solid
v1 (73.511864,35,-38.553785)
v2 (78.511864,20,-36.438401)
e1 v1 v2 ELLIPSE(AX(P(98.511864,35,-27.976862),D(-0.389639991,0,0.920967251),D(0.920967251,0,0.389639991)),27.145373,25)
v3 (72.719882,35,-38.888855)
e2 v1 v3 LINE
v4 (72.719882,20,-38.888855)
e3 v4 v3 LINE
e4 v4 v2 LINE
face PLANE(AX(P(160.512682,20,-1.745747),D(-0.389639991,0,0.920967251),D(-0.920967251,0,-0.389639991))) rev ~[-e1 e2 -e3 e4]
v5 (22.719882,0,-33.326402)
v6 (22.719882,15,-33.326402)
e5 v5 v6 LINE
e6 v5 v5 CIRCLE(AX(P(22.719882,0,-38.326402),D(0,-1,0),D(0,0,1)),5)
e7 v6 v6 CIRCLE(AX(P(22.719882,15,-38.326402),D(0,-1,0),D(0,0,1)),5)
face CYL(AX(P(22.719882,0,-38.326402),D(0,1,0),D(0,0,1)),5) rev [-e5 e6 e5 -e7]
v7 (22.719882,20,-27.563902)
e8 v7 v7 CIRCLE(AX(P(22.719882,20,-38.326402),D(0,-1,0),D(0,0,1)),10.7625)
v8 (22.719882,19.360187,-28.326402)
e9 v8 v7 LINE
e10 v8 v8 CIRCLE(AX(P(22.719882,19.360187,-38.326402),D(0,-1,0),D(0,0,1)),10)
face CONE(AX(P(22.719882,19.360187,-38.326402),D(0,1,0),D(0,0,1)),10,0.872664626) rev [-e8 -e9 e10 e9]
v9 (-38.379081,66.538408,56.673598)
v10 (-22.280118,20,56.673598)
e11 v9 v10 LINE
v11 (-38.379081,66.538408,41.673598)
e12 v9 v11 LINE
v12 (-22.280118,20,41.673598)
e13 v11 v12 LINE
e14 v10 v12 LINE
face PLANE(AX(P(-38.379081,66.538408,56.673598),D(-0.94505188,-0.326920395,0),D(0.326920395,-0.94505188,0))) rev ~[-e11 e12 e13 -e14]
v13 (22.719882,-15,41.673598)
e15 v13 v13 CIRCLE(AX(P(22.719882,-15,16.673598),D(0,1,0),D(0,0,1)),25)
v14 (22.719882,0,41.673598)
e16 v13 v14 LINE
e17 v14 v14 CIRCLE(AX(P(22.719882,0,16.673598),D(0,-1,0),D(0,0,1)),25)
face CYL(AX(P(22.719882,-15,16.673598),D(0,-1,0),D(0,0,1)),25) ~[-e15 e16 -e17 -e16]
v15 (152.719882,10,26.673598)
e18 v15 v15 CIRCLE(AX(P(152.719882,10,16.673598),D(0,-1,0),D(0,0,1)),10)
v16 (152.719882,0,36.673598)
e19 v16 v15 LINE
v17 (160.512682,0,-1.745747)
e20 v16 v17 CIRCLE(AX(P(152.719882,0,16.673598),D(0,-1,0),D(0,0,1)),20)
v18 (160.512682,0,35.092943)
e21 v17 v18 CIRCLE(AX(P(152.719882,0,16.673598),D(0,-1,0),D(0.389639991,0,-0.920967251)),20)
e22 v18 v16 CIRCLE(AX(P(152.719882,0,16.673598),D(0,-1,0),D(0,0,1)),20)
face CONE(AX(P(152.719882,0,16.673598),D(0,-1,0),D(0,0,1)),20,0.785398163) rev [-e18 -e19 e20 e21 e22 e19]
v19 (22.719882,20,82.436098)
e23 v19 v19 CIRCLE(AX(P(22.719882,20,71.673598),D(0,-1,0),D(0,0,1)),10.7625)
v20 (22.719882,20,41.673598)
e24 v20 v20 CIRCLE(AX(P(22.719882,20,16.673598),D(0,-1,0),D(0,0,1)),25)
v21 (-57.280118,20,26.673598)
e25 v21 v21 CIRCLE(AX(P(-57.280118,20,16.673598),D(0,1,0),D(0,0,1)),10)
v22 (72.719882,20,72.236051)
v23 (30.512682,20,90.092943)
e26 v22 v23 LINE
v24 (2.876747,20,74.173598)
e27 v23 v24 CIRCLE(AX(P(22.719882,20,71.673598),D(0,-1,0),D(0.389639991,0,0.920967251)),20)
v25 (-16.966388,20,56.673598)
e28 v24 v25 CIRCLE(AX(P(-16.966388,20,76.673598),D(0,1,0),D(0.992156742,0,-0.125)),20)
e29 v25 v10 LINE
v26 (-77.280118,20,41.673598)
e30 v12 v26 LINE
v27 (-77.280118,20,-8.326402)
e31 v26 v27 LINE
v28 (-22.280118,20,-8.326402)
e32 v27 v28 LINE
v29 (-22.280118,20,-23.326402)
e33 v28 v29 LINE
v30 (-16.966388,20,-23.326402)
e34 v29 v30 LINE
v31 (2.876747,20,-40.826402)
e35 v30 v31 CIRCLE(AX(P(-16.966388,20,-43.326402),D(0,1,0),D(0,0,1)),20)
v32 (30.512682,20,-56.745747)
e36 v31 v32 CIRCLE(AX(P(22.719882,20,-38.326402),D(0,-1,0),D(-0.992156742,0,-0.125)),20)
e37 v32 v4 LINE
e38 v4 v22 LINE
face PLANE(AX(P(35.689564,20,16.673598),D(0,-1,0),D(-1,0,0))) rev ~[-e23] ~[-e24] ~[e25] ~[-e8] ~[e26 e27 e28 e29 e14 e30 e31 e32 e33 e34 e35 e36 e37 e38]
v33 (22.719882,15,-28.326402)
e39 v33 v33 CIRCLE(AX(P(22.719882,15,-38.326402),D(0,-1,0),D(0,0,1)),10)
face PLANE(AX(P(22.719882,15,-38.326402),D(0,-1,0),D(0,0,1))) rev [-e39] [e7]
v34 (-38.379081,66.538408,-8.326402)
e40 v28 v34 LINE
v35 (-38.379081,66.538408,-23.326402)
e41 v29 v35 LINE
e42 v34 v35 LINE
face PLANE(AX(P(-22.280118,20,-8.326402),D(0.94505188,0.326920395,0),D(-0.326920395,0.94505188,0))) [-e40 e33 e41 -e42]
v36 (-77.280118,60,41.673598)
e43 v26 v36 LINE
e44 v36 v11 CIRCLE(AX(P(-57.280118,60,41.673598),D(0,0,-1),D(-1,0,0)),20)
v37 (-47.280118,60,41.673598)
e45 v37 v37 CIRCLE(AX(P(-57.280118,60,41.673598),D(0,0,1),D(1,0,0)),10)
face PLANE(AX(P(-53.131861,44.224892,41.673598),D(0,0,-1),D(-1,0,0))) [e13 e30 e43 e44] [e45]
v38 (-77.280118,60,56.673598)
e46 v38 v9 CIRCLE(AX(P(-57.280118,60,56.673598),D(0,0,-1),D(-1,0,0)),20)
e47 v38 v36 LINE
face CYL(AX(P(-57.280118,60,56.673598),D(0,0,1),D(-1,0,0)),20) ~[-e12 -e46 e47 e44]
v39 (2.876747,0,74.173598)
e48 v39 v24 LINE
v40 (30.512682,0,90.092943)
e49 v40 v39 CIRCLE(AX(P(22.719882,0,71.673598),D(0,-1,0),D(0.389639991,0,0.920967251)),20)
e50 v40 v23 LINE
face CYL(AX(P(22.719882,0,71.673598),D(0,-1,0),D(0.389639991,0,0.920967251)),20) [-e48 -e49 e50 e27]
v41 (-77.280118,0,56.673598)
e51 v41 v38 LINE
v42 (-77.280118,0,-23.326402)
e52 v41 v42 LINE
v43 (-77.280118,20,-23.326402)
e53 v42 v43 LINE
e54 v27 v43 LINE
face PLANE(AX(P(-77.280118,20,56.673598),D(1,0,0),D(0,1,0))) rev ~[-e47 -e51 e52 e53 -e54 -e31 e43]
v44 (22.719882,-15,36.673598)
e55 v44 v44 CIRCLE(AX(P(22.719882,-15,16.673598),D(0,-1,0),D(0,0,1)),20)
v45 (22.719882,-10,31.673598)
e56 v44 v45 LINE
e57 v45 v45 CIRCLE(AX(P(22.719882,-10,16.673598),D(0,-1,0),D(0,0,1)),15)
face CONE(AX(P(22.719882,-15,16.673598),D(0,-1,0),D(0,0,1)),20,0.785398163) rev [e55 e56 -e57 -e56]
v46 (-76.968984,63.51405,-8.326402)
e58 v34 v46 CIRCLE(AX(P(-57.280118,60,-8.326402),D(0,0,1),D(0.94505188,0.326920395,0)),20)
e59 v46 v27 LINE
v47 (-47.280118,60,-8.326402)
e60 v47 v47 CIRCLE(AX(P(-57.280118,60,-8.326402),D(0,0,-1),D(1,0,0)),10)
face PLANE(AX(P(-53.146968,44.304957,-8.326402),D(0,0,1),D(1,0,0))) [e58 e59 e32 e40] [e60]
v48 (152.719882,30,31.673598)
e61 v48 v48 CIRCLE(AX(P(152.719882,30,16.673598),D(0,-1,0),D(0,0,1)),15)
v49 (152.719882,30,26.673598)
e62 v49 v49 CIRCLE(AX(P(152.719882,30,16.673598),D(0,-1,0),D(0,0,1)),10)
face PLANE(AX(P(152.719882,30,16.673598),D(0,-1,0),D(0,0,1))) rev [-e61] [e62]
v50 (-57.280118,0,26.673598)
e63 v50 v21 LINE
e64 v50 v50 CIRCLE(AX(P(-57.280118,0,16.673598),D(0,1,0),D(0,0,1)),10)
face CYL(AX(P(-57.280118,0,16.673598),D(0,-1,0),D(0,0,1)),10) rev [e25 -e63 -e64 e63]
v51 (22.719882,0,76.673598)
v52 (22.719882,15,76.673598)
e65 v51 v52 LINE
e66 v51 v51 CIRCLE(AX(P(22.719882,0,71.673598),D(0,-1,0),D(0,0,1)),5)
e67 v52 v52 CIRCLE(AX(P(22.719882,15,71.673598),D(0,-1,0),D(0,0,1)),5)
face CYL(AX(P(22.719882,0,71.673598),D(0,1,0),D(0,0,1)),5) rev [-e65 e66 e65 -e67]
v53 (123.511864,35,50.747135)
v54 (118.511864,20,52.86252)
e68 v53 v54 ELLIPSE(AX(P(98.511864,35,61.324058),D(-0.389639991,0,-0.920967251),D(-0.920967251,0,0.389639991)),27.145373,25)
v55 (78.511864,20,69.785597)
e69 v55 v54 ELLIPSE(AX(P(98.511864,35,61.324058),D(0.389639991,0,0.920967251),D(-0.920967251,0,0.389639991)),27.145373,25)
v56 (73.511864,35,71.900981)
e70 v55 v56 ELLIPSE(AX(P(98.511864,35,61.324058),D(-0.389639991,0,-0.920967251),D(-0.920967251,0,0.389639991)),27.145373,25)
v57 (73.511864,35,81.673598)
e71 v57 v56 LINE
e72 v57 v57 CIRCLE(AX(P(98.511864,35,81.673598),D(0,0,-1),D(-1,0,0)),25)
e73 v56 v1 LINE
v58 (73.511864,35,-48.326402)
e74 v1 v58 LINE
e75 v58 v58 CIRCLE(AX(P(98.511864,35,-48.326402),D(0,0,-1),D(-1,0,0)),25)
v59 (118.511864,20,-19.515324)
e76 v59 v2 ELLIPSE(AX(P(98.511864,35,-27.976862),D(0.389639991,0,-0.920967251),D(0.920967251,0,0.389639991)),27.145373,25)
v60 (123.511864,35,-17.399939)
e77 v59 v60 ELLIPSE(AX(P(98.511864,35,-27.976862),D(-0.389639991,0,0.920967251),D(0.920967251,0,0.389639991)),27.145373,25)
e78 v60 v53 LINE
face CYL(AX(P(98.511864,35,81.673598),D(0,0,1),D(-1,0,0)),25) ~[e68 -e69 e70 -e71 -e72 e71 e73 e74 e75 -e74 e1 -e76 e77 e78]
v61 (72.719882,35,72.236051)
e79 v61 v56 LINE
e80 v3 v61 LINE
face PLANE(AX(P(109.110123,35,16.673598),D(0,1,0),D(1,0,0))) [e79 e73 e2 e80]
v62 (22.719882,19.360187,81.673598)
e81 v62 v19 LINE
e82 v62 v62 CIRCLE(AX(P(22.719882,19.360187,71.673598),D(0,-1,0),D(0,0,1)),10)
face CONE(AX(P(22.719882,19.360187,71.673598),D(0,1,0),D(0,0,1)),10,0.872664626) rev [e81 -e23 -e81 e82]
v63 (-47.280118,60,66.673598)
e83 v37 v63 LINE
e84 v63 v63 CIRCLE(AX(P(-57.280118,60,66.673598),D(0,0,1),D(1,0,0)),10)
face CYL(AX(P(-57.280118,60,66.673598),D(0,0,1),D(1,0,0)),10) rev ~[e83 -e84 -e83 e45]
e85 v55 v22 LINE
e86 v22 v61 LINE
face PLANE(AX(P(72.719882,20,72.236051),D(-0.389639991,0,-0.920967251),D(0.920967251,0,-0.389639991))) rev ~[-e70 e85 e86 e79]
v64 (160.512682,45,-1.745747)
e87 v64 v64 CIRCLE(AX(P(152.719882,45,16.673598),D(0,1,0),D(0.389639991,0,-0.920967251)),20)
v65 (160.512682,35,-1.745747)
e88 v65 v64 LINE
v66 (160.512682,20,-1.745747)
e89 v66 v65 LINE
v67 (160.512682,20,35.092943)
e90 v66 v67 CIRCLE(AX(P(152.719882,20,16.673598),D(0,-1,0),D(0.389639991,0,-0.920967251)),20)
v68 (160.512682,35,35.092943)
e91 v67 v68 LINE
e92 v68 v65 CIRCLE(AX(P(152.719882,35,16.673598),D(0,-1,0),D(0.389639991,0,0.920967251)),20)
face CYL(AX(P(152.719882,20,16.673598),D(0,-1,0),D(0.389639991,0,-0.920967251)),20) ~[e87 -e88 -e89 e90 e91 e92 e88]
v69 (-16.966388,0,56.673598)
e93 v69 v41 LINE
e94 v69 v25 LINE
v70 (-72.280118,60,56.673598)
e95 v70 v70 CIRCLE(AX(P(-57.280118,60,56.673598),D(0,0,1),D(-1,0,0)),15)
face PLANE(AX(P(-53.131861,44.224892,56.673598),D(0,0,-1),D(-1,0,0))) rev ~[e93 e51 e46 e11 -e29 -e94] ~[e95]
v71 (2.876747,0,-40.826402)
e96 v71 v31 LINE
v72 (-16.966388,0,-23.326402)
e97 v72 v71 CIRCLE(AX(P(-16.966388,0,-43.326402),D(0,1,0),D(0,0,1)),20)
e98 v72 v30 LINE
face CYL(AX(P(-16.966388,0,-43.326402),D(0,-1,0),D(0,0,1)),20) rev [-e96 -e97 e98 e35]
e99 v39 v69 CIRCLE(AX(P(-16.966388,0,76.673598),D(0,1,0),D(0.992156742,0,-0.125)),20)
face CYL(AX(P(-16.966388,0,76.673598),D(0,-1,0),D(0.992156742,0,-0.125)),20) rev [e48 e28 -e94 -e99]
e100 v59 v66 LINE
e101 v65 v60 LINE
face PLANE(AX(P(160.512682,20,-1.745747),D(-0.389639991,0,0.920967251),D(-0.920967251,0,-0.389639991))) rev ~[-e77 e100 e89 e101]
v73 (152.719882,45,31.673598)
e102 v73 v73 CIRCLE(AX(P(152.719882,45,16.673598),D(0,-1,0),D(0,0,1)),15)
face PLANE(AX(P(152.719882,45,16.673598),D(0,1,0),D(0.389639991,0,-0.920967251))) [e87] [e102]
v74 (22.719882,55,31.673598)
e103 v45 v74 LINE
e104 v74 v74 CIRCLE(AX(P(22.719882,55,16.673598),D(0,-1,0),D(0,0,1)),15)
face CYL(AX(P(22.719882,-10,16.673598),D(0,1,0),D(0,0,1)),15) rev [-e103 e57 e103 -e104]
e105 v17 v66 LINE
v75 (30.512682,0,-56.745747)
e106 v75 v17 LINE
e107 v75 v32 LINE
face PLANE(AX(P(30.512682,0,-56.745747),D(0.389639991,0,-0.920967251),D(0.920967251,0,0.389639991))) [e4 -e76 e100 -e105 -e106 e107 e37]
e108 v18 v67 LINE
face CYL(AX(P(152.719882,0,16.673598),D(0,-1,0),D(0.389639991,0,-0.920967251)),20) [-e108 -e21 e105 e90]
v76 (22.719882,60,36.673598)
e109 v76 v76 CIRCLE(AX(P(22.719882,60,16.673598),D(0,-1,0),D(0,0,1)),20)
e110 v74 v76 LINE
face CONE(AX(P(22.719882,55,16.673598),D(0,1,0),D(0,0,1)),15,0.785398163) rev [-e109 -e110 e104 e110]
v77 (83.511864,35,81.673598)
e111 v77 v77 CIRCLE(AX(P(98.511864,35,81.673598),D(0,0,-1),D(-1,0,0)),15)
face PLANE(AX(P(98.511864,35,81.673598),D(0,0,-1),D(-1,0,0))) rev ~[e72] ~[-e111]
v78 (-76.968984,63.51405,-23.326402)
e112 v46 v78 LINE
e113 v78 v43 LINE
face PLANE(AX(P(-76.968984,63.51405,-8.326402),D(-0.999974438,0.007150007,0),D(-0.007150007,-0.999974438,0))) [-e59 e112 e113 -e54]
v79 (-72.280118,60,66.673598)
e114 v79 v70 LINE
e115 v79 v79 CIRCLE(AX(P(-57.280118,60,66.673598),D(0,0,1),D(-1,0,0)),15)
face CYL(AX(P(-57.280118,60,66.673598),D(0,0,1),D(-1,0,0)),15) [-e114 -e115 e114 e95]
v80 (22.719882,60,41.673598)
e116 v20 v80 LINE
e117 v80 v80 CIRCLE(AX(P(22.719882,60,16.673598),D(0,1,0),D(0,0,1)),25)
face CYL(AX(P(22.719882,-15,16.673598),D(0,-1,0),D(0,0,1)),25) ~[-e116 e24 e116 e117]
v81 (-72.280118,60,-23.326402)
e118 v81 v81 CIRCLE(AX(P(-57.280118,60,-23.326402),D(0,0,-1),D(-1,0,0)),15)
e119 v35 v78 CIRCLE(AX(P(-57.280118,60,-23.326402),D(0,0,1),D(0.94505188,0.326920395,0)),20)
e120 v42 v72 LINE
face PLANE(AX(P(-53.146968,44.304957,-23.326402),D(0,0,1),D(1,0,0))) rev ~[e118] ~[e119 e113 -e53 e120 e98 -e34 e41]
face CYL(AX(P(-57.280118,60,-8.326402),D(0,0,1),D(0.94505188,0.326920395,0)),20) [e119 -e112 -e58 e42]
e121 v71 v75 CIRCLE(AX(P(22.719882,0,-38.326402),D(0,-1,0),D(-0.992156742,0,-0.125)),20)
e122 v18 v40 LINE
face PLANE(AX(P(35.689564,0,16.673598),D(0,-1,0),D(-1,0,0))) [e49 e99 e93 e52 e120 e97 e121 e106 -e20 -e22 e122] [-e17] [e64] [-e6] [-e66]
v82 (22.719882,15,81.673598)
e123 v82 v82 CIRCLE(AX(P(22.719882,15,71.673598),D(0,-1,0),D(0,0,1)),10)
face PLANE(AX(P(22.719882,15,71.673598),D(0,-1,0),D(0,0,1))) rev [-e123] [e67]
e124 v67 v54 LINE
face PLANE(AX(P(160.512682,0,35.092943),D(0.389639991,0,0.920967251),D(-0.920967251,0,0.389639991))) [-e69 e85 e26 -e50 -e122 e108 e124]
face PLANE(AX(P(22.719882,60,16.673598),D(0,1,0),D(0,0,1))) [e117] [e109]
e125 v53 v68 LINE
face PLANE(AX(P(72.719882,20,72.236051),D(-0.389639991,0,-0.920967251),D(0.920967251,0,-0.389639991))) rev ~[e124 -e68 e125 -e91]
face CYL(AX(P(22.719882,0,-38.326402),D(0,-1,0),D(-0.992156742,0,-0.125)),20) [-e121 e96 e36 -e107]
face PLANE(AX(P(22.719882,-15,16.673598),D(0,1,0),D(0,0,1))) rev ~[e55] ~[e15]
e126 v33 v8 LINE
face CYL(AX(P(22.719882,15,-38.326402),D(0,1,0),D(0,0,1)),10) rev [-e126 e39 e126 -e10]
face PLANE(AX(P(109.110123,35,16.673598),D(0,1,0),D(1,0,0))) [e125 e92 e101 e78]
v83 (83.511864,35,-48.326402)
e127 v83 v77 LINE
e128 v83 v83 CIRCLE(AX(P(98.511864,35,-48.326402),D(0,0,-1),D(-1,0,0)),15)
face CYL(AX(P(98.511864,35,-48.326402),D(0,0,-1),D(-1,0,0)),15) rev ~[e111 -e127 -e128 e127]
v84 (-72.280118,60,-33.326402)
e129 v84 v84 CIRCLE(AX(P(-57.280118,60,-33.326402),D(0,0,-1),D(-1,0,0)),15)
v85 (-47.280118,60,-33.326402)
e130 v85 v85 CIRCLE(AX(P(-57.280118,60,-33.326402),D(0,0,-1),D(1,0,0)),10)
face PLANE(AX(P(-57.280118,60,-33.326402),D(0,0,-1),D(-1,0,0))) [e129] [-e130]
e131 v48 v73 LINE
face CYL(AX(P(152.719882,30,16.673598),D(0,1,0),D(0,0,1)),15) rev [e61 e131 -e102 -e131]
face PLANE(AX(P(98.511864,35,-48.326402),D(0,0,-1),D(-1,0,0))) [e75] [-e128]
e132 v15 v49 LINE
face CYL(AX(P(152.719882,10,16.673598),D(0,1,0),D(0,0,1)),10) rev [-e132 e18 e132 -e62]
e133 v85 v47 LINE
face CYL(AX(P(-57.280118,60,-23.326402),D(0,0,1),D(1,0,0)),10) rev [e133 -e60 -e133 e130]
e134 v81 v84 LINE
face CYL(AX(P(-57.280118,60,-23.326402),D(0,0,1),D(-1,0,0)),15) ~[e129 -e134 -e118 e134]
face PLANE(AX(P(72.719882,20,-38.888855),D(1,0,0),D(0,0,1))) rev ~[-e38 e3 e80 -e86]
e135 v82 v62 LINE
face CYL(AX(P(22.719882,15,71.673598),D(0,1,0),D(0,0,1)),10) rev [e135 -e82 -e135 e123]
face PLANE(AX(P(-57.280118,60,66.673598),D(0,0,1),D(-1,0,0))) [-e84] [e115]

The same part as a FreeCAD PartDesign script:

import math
import FreeCAD as App
import Part
import Sketcher
Q = App.Units.Quantity

doc = App.newDocument("Part")
body = doc.addObject("PartDesign::Body", "Body")

# Sketch on XZ plane
sketch1 = doc.addObject("Sketcher::SketchObject", "Sketch")
body.addObject(sketch1)
sketch1.AttachmentSupport = (doc.XZ_Plane, [""])
sketch1.MapMode = "FlatFace"
sketch1.addGeometry([
    Part.LineSegment(App.Vector(-77, -23, 0), App.Vector(-77, 57, 0)),  # 0
    Part.LineSegment(App.Vector(-77, 57, 0), App.Vector(-17, 57, 0)),  # 1
    Part.ArcOfCircle(Part.Circle(App.Vector(-17, 77, 0), App.Vector(0, 0, 1), 20), math.radians(-90), math.radians(-7)),  # 2
    Part.ArcOfCircle(Part.Circle(App.Vector(23, 72, 0), App.Vector(0, 0, 1), 20), math.radians(67), math.radians(173)),  # 3
    Part.LineSegment(App.Vector(31, 90, 0), App.Vector(161, 35, 0)),  # 4
    Part.ArcOfCircle(Part.Circle(App.Vector(153, 17, 0), App.Vector(0, 0, 1), 20), math.radians(-67), math.radians(67)),  # 5
    Part.LineSegment(App.Vector(161, -2, 0), App.Vector(31, -57, 0)),  # 6
    Part.ArcOfCircle(Part.Circle(App.Vector(23, -38, 0), App.Vector(0, 0, 1), 20), math.radians(-173), math.radians(-67)),  # 7
    Part.ArcOfCircle(Part.Circle(App.Vector(-17, -43, 0), App.Vector(0, 0, 1), 20), math.radians(7), math.radians(90)),  # 8
    Part.LineSegment(App.Vector(-17, -23, 0), App.Vector(-77, -23, 0)),  # 9
    Part.Circle(App.Vector(-57, 17, 0), App.Vector(0, 0, 1), 10),  # 10
], False)
sketch1.addConstraint([
    Sketcher.Constraint("Coincident", 0, 2, 1, 1),
    Sketcher.Constraint("Tangent", 1, 2, 2, 1),
    Sketcher.Constraint("Tangent", 2, 2, 3, 2),
    Sketcher.Constraint("Tangent", 3, 1, 4, 1),
    Sketcher.Constraint("Tangent", 4, 2, 5, 2),
    Sketcher.Constraint("Tangent", 5, 1, 6, 1),
    Sketcher.Constraint("Tangent", 6, 2, 7, 2),
    Sketcher.Constraint("Tangent", 7, 1, 8, 1),
    Sketcher.Constraint("Tangent", 8, 2, 9, 1),
    Sketcher.Constraint("Coincident", 9, 2, 0, 1),
    Sketcher.Constraint("Vertical", 0),
    Sketcher.Constraint("Horizontal", 1),
    Sketcher.Constraint("Horizontal", 9),
    Sketcher.Constraint("Equal", 2, 3),
    Sketcher.Constraint("Equal", 3, 5),
    Sketcher.Constraint("Equal", 5, 7),
    Sketcher.Constraint("Equal", 7, 8),
    Sketcher.Constraint("Horizontal", 5, 3, 10, 3),
    Sketcher.Constraint("Vertical", 3, 3, 7, 3),
    Sketcher.Constraint("Vertical", 2, 3, 8, 3),
    Sketcher.Constraint("Vertical", 4, 2, 5, 1),
    Sketcher.Constraint("Diameter", 10, 20.0),
    Sketcher.Constraint("Radius", 2, 20.0),
    Sketcher.Constraint("DistanceY", 0, 1, 0, 2, 80.0),
    Sketcher.Constraint("DistanceY", 3, 3, 2, 3, 5.0),
    Sketcher.Constraint("DistanceX", 3, 3, 5, 3, 130.0),
    Sketcher.Constraint("DistanceX", 10, 3, 3, 3, 80.0),
    Sketcher.Constraint("DistanceX", 0, 2, 10, 3, 20.0),
    Sketcher.Constraint("DistanceY", -1, 1, 2, 3, 76.673598),
    Sketcher.Constraint("DistanceX", -1, 1, 3, 3, 22.719882),
])
pad1 = doc.addObject("PartDesign::Pad", "Pad")
body.addObject(pad1)
pad1.Profile = sketch1
pad1.Length = 20
pad1.Reversed = True

# Sketch on XY plane
sketch2 = doc.addObject("Sketcher::SketchObject", "Sketch001")
body.addObject(sketch2)
sketch2.AttachmentSupport = (doc.XY_Plane, [""])
sketch2.MapMode = "FlatFace"
sketch2.AttachmentOffset = App.Placement(App.Vector(0, 0, 56.673598), App.Rotation())
sketch2.addGeometry([
    Part.LineSegment(App.Vector(-77, 60, 0), App.Vector(-77, 20, 0)),  # 0
    Part.LineSegment(App.Vector(-77, 20, 0), App.Vector(-22, 20, 0)),  # 1
    Part.LineSegment(App.Vector(-22, 20, 0), App.Vector(-38, 67, 0)),  # 2
    Part.ArcOfCircle(Part.Circle(App.Vector(-57, 60, 0), App.Vector(0, 0, 1), 20), math.radians(19), math.radians(180)),  # 3
    Part.Circle(App.Vector(-57, 60, 0), App.Vector(0, 0, 1), 10),  # 4
], False)
sketch2.addConstraint([
    Sketcher.Constraint("Coincident", 0, 2, 1, 1),
    Sketcher.Constraint("Coincident", 1, 2, 2, 1),
    Sketcher.Constraint("Tangent", 2, 2, 3, 1),
    Sketcher.Constraint("Tangent", 3, 2, 0, 1),
    Sketcher.Constraint("Vertical", 0),
    Sketcher.Constraint("Horizontal", 1),
    Sketcher.Constraint("Coincident", 4, 3, 3, 3),
    Sketcher.Constraint("Diameter", 4, 20.0),
    Sketcher.Constraint("Radius", 3, 20.0),
    Sketcher.Constraint("DistanceX", 1, 1, 1, 2, 55.0),
    Sketcher.Constraint("DistanceY", 0, 2, 0, 1, 40.0),
    Sketcher.Constraint("DistanceY", -1, 1, 3, 3, 60.0),
    Sketcher.Constraint("DistanceX", 3, 3, -1, 1, 57.280118),
])
pad2 = doc.addObject("PartDesign::Pad", "Pad001")
body.addObject(pad2)
pad2.Profile = sketch2
pad2.Length = 15
pad2.Reversed = True

# Sketch on XY plane
sketch3 = doc.addObject("Sketcher::SketchObject", "Sketch002")
body.addObject(sketch3)
sketch3.AttachmentSupport = (doc.XY_Plane, [""])
sketch3.MapMode = "FlatFace"
sketch3.AttachmentOffset = App.Placement(App.Vector(0, 0, 66.673598), App.Rotation())
sketch3.addGeometry([
    Part.Circle(App.Vector(-57, 60, 0), App.Vector(0, 0, 1), 15),
    Part.Circle(App.Vector(-57, 60, 0), App.Vector(0, 0, 1), 10),
], False)
sketch3.addConstraint([
    Sketcher.Constraint("Coincident", 1, 3, 0, 3),
    Sketcher.Constraint("Diameter", 0, 30.0),
    Sketcher.Constraint("Diameter", 1, 20.0),
    Sketcher.Constraint("DistanceY", -1, 1, 0, 3, 60.0),
    Sketcher.Constraint("DistanceX", 0, 3, -1, 1, 57.280118),
])
pad3 = doc.addObject("PartDesign::Pad", "Pad002")
body.addObject(pad3)
pad3.Profile = sketch3
pad3.Length = 10
pad3.Reversed = True

# Sketch on XY plane
sketch4 = doc.addObject("Sketcher::SketchObject", "Sketch003")
body.addObject(sketch4)
sketch4.AttachmentSupport = (doc.XY_Plane, [""])
sketch4.MapMode = "FlatFace"
sketch4.AttachmentOffset = App.Placement(App.Vector(0, 0, -8.326402), App.Rotation())
sketch4.addGeometry([
    Part.LineSegment(App.Vector(-38, 67, 0), App.Vector(-22, 20, 0)),  # 0
    Part.LineSegment(App.Vector(-22, 20, 0), App.Vector(-77, 20, 0)),  # 1
    Part.LineSegment(App.Vector(-77, 20, 0), App.Vector(-77, 64, 0)),  # 2
    Part.ArcOfCircle(Part.Circle(App.Vector(-57, 60, 0), App.Vector(0, 0, 1), 20), math.radians(19), math.radians(170)),  # 3
    Part.Circle(App.Vector(-57, 60, 0), App.Vector(0, 0, 1), 10),  # 4
], False)
sketch4.addConstraint([
    Sketcher.Constraint("Coincident", 0, 2, 1, 1),
    Sketcher.Constraint("Coincident", 1, 2, 2, 1),
    Sketcher.Constraint("Coincident", 2, 2, 3, 2),
    Sketcher.Constraint("Tangent", 3, 1, 0, 1),
    Sketcher.Constraint("Horizontal", 1),
    Sketcher.Constraint("Coincident", 4, 3, 3, 3),
    Sketcher.Constraint("Diameter", 4, 20.0),
    Sketcher.Constraint("Radius", 3, 20.0),
    Sketcher.Constraint("DistanceX", 1, 2, 1, 1, 55.0),
    Sketcher.Constraint("DistanceY", -1, 1, 3, 3, 60.0),
    Sketcher.Constraint("DistanceY", -1, 1, 0, 2, 20.0),
    Sketcher.Constraint("DistanceX", 3, 3, 0, 2, 35.0),
    Sketcher.Constraint("Distance", 2, 43.515162),
    Sketcher.Constraint("DistanceX", 3, 3, -1, 1, 57.280118),
])
pad4 = doc.addObject("PartDesign::Pad", "Pad003")
body.addObject(pad4)
pad4.Profile = sketch4
pad4.Length = 15
pad4.Reversed = True

# Sketch on XY plane
sketch5 = doc.addObject("Sketcher::SketchObject", "Sketch004")
body.addObject(sketch5)
sketch5.AttachmentSupport = (doc.XY_Plane, [""])
sketch5.MapMode = "FlatFace"
sketch5.AttachmentOffset = App.Placement(App.Vector(0, 0, -23.326402), App.Rotation())
sketch5.addGeometry([
    Part.Circle(App.Vector(-57, 60, 0), App.Vector(0, 0, 1), 15),
    Part.Circle(App.Vector(-57, 60, 0), App.Vector(0, 0, 1), 10),
], False)
sketch5.addConstraint([
    Sketcher.Constraint("Coincident", 1, 3, 0, 3),
    Sketcher.Constraint("Diameter", 0, 30.0),
    Sketcher.Constraint("Diameter", 1, 20.0),
    Sketcher.Constraint("DistanceY", -1, 1, 0, 3, 60.0),
    Sketcher.Constraint("DistanceX", 0, 3, -1, 1, 57.280118),
])
pad5 = doc.addObject("PartDesign::Pad", "Pad004")
body.addObject(pad5)
pad5.Profile = sketch5
pad5.Length = 10
pad5.Reversed = True

# Sketch on YZ plane
sketch6 = doc.addObject("Sketcher::SketchObject", "Sketch005")
body.addObject(sketch6)
sketch6.AttachmentSupport = (doc.YZ_Plane, [""])
sketch6.MapMode = "FlatFace"
sketch6.AttachmentOffset = App.Placement(App.Vector(0, 0, 22.719882), App.Rotation())
sketch6.addGeometry([
    Part.LineSegment(App.Vector(0, 71.7, 0), App.Vector(20, 71.7, 0)),  # 0
    Part.LineSegment(App.Vector(20, 71.7, 0), App.Vector(20, 82.4, 0)),  # 1
    Part.LineSegment(App.Vector(20, 82.4, 0), App.Vector(19.4, 81.7, 0)),  # 2
    Part.LineSegment(App.Vector(19.4, 81.7, 0), App.Vector(15, 81.7, 0)),  # 3
    Part.LineSegment(App.Vector(15, 81.7, 0), App.Vector(15, 76.7, 0)),  # 4
    Part.LineSegment(App.Vector(15, 76.7, 0), App.Vector(0, 76.7, 0)),  # 5
    Part.LineSegment(App.Vector(0, 76.7, 0), App.Vector(0, 71.7, 0)),  # 6
], False)
sketch6.addGeometry(Part.LineSegment(App.Vector(20, 71.7, 0), App.Vector(0, 71.7, 0)), True)  # axis
sketch6.addConstraint([
    Sketcher.Constraint("Coincident", 0, 2, 1, 1),
    Sketcher.Constraint("Coincident", 1, 2, 2, 1),
    Sketcher.Constraint("Coincident", 2, 2, 3, 1),
    Sketcher.Constraint("Coincident", 3, 2, 4, 1),
    Sketcher.Constraint("Coincident", 4, 2, 5, 1),
    Sketcher.Constraint("Coincident", 5, 2, 6, 1),
    Sketcher.Constraint("Coincident", 6, 2, 0, 1),
    Sketcher.Constraint("Horizontal", 0),
    Sketcher.Constraint("Vertical", 1),
    Sketcher.Constraint("Horizontal", 3),
    Sketcher.Constraint("Vertical", 4),
    Sketcher.Constraint("Horizontal", 5),
    Sketcher.Constraint("Vertical", 6),
    Sketcher.Constraint("Horizontal", 7),
    Sketcher.Constraint("Coincident", 7, 1, 0, 2),
    Sketcher.Constraint("PointOnObject", 5, 2, -2),
    Sketcher.Constraint("PointOnObject", 7, 2, -2),
    Sketcher.Constraint("Equal", 4, 6),
    Sketcher.Constraint("DistanceX", 0, 1, 0, 2, 20.0),
    Sketcher.Constraint("DistanceX", 5, 2, 5, 1, 15.0),
    Sketcher.Constraint("DistanceY", 4, 2, 4, 1, 5.0),
    Sketcher.Constraint("Angle", 2, Q("-130 deg")),
    Sketcher.Constraint("DistanceY", 1, 1, 1, 2, 10.7625),
    Sketcher.Constraint("DistanceY", -1, 1, 0, 2, 71.673598),
])
groove = doc.addObject("PartDesign::Groove", "Groove")
body.addObject(groove)
groove.Profile = sketch6
groove.ReferenceAxis = (sketch6, ["Axis0"])
groove.Angle = 360
doc.recompute()

datumline = doc.addObject("PartDesign::Line", "DatumLine")
body.addObject(datumline)
datumline.Placement = App.Placement(App.Vector(0, 0, 0), App.Rotation(App.Vector(0, 0, 1), App.Vector(-0.054916089, 0, -0.998490973)))
linearpattern = doc.addObject("PartDesign::LinearPattern", "LinearPattern")
body.addObject(linearpattern)
linearpattern.Originals = [groove]
linearpattern.Direction = (datumline, [""])
linearpattern.Mode = "offset"
linearpattern.Offset = 462.37472
linearpattern.Occurrences = 2
body.Tip = linearpattern
doc.recompute()

linearpattern2 = doc.addObject("PartDesign::LinearPattern", "LinearPattern001")
body.addObject(linearpattern2)
linearpattern2.Originals = [groove]
linearpattern2.Direction = (doc.Z_Axis, [""])
linearpattern2.Mode = "offset"
linearpattern2.Offset = 110
linearpattern2.Occurrences = 2
linearpattern2.Reversed = True
body.Tip = linearpattern2

# Sketch on XZ plane
sketch7 = doc.addObject("Sketcher::SketchObject", "Sketch006")
body.addObject(sketch7)
sketch7.AttachmentSupport = (doc.XZ_Plane, [""])
sketch7.MapMode = "FlatFace"
sketch7.AttachmentOffset = App.Placement(App.Vector(0, 0, -20), App.Rotation())
sketch7.addGeometry(Part.Circle(App.Vector(23, 17, 0), App.Vector(0, 0, 1), 25), False)
sketch7.addConstraint([
    Sketcher.Constraint("Diameter", 0, 50.0),
    Sketcher.Constraint("DistanceY", -1, 1, 0, 3, 16.673598),
    Sketcher.Constraint("DistanceX", -1, 1, 0, 3, 22.719882),
])
pad6 = doc.addObject("PartDesign::Pad", "Pad005")
body.addObject(pad6)
pad6.Profile = sketch7
pad6.Type = "TwoLengths"
pad6.Length = 40
pad6.Length2 = 35
pad6.Reversed = True

# Sketch on YZ plane
sketch8 = doc.addObject("Sketcher::SketchObject", "Sketch007")
body.addObject(sketch8)
sketch8.AttachmentSupport = (doc.YZ_Plane, [""])
sketch8.MapMode = "FlatFace"
sketch8.AttachmentOffset = App.Placement(App.Vector(0, 0, 22.719882), App.Rotation())
sketch8.addGeometry([
    Part.LineSegment(App.Vector(-15, 17, 0), App.Vector(60, 17, 0)),  # 0
    Part.LineSegment(App.Vector(60, 17, 0), App.Vector(60, 37, 0)),  # 1
    Part.LineSegment(App.Vector(60, 37, 0), App.Vector(55, 32, 0)),  # 2
    Part.LineSegment(App.Vector(55, 32, 0), App.Vector(-10, 32, 0)),  # 3
    Part.LineSegment(App.Vector(-10, 32, 0), App.Vector(-15, 37, 0)),  # 4
    Part.LineSegment(App.Vector(-15, 37, 0), App.Vector(-15, 17, 0)),  # 5
], False)
sketch8.addGeometry(Part.LineSegment(App.Vector(60, 17, 0), App.Vector(-15, 17, 0)), True)  # axis
sketch8.addConstraint([
    Sketcher.Constraint("Coincident", 0, 2, 1, 1),
    Sketcher.Constraint("Coincident", 1, 2, 2, 1),
    Sketcher.Constraint("Coincident", 2, 2, 3, 1),
    Sketcher.Constraint("Coincident", 3, 2, 4, 1),
    Sketcher.Constraint("Coincident", 4, 2, 5, 1),
    Sketcher.Constraint("Coincident", 5, 2, 0, 1),
    Sketcher.Constraint("Horizontal", 0),
    Sketcher.Constraint("Vertical", 1),
    Sketcher.Constraint("Horizontal", 3),
    Sketcher.Constraint("Vertical", 5),
    Sketcher.Constraint("Horizontal", 6),
    Sketcher.Constraint("Coincident", 6, 1, 0, 2),
    Sketcher.Constraint("Perpendicular", 2, 4),
    Sketcher.Constraint("Horizontal", 1, 2, 4, 2),
    Sketcher.Constraint("Vertical", 4, 2, 6, 2),
    Sketcher.Constraint("Equal", 2, 4),
    Sketcher.Constraint("DistanceX", 0, 1, 0, 2, 75.0),
    Sketcher.Constraint("DistanceX", 3, 2, 3, 1, 65.0),
    Sketcher.Constraint("DistanceY", 1, 1, 1, 2, 20.0),
    Sketcher.Constraint("DistanceX", -1, 1, 0, 2, 60.0),
    Sketcher.Constraint("DistanceY", -1, 1, 0, 2, 16.673598),
])
groove2 = doc.addObject("PartDesign::Groove", "Groove001")
body.addObject(groove2)
groove2.Profile = sketch8
groove2.ReferenceAxis = (sketch8, ["Axis0"])
groove2.Angle = 360

# Sketch on XZ plane
sketch9 = doc.addObject("Sketcher::SketchObject", "Sketch008")
body.addObject(sketch9)
sketch9.AttachmentSupport = (doc.XZ_Plane, [""])
sketch9.MapMode = "FlatFace"
sketch9.AttachmentOffset = App.Placement(App.Vector(0, 0, -20), App.Rotation())
sketch9.addGeometry(Part.Circle(App.Vector(153, 17, 0), App.Vector(0, 0, 1), 20), False)
sketch9.addConstraint([
    Sketcher.Constraint("Diameter", 0, 40.0),
    Sketcher.Constraint("DistanceY", -1, 1, 0, 3, 16.673598),
    Sketcher.Constraint("DistanceX", -1, 1, 0, 3, 152.719882),
])
pad7 = doc.addObject("PartDesign::Pad", "Pad006")
body.addObject(pad7)
pad7.Profile = sketch9
pad7.Length = 25
pad7.Reversed = True

# Sketch on YZ plane
sketch10 = doc.addObject("Sketcher::SketchObject", "Sketch009")
body.addObject(sketch10)
sketch10.AttachmentSupport = (doc.YZ_Plane, [""])
sketch10.MapMode = "FlatFace"
sketch10.AttachmentOffset = App.Placement(App.Vector(0, 0, 152.719882), App.Rotation())
sketch10.addGeometry([
    Part.LineSegment(App.Vector(0, 17, 0), App.Vector(45, 17, 0)),  # 0
    Part.LineSegment(App.Vector(45, 17, 0), App.Vector(45, 32, 0)),  # 1
    Part.LineSegment(App.Vector(45, 32, 0), App.Vector(30, 32, 0)),  # 2
    Part.LineSegment(App.Vector(30, 32, 0), App.Vector(30, 27, 0)),  # 3
    Part.LineSegment(App.Vector(30, 27, 0), App.Vector(10, 27, 0)),  # 4
    Part.LineSegment(App.Vector(10, 27, 0), App.Vector(0, 37, 0)),  # 5
    Part.LineSegment(App.Vector(0, 37, 0), App.Vector(0, 17, 0)),  # 6
], False)
sketch10.addGeometry(Part.LineSegment(App.Vector(45, 17, 0), App.Vector(0, 17, 0)), True)  # axis
sketch10.addConstraint([
    Sketcher.Constraint("Coincident", 0, 2, 1, 1),
    Sketcher.Constraint("Coincident", 1, 2, 2, 1),
    Sketcher.Constraint("Coincident", 2, 2, 3, 1),
    Sketcher.Constraint("Coincident", 3, 2, 4, 1),
    Sketcher.Constraint("Coincident", 4, 2, 5, 1),
    Sketcher.Constraint("Coincident", 5, 2, 6, 1),
    Sketcher.Constraint("Coincident", 6, 2, 0, 1),
    Sketcher.Constraint("Horizontal", 0),
    Sketcher.Constraint("Vertical", 1),
    Sketcher.Constraint("Horizontal", 2),
    Sketcher.Constraint("Vertical", 3),
    Sketcher.Constraint("Horizontal", 4),
    Sketcher.Constraint("Vertical", 6),
    Sketcher.Constraint("Horizontal", 7),
    Sketcher.Constraint("Coincident", 7, 1, 0, 2),
    Sketcher.Constraint("PointOnObject", 5, 2, -2),
    Sketcher.Constraint("PointOnObject", 7, 2, -2),
    Sketcher.Constraint("Equal", 2, 1),
    Sketcher.Constraint("Equal", 4, 6),
    Sketcher.Constraint("DistanceX", 0, 1, 0, 2, 45.0),
    Sketcher.Constraint("DistanceX", 2, 2, 2, 1, 15.0),
    Sketcher.Constraint("DistanceX", 4, 2, 4, 1, 20.0),
    Sketcher.Constraint("DistanceY", 3, 2, 3, 1, 5.0),
    Sketcher.Constraint("DistanceY", -1, 1, 0, 2, 16.673598),
])
groove3 = doc.addObject("PartDesign::Groove", "Groove002")
body.addObject(groove3)
groove3.Profile = sketch10
groove3.ReferenceAxis = (sketch10, ["Axis0"])
groove3.Angle = 360

# Sketch on XZ plane
sketch11 = doc.addObject("Sketcher::SketchObject", "Sketch010")
body.addObject(sketch11)
sketch11.AttachmentSupport = (doc.XZ_Plane, [""])
sketch11.MapMode = "FlatFace"
sketch11.AttachmentOffset = App.Placement(App.Vector(0, 0, -20), App.Rotation())
sketch11.addGeometry([
    Part.ArcOfCircle(Part.Circle(App.Vector(153, 17, 0), App.Vector(0, 0, 1), 20), math.radians(67), math.radians(293)),
    Part.LineSegment(App.Vector(161, -2, 0), App.Vector(73, -39, 0)),
    Part.LineSegment(App.Vector(73, -39, 0), App.Vector(73, 72, 0)),
    Part.LineSegment(App.Vector(73, 72, 0), App.Vector(161, 35, 0)),
], False)
sketch11.addConstraint([
    Sketcher.Constraint("Tangent", 0, 2, 1, 1),
    Sketcher.Constraint("Coincident", 1, 2, 2, 1),
    Sketcher.Constraint("Coincident", 2, 2, 3, 1),
    Sketcher.Constraint("Tangent", 3, 2, 0, 1),
    Sketcher.Constraint("Vertical", 2),
    Sketcher.Constraint("Vertical", 0, 2, 3, 2),
    Sketcher.Constraint("Radius", 0, 20.0),
    Sketcher.Constraint("DistanceX", 1, 2, 0, 3, 80.0),
    Sketcher.Constraint("DistanceY", -1, 1, 0, 3, 16.673598),
    Sketcher.Constraint("DistanceX", 0, 3, 0, 2, 7.7928),
    Sketcher.Constraint("DistanceX", -1, 1, 0, 3, 152.719882),
])
pad8 = doc.addObject("PartDesign::Pad", "Pad007")
body.addObject(pad8)
pad8.Profile = sketch11
pad8.Length = 15
pad8.Reversed = True

# Sketch on XY plane
sketch12 = doc.addObject("Sketcher::SketchObject", "Sketch011")
body.addObject(sketch12)
sketch12.AttachmentSupport = (doc.XY_Plane, [""])
sketch12.MapMode = "FlatFace"
sketch12.AttachmentOffset = App.Placement(App.Vector(0, 0, 16.673598), App.Rotation())
sketch12.addGeometry(Part.Circle(App.Vector(99, 35, 0), App.Vector(0, 0, 1), 25), False)
sketch12.addConstraint([
    Sketcher.Constraint("Diameter", 0, 50.0),
    Sketcher.Constraint("DistanceY", -1, 1, 0, 3, 35.0),
    Sketcher.Constraint("DistanceX", -1, 1, 0, 3, 98.511864),
])
pad9 = doc.addObject("PartDesign::Pad", "Pad008")
body.addObject(pad9)
pad9.Profile = sketch12
pad9.Type = "TwoLengths"
pad9.Length = 65
pad9.Length2 = 65
pad9.Reversed = True

# Sketch on XY plane
sketch13 = doc.addObject("Sketcher::SketchObject", "Sketch012")
body.addObject(sketch13)
sketch13.AttachmentSupport = (doc.XY_Plane, [""])
sketch13.MapMode = "FlatFace"
sketch13.AttachmentOffset = App.Placement(App.Vector(0, 0, -48.326402), App.Rotation())
sketch13.addGeometry(Part.Circle(App.Vector(99, 35, 0), App.Vector(0, 0, 1), 15), False)
sketch13.addConstraint([
    Sketcher.Constraint("Diameter", 0, 30.0),
    Sketcher.Constraint("DistanceY", -1, 1, 0, 3, 35.0),
    Sketcher.Constraint("DistanceX", -1, 1, 0, 3, 98.511864),
])
pocket1 = doc.addObject("PartDesign::Pocket", "Pocket")
body.addObject(pocket1)
pocket1.Profile = sketch13
pocket1.Length = 181
pocket1.Reversed = True

doc.recompute()
